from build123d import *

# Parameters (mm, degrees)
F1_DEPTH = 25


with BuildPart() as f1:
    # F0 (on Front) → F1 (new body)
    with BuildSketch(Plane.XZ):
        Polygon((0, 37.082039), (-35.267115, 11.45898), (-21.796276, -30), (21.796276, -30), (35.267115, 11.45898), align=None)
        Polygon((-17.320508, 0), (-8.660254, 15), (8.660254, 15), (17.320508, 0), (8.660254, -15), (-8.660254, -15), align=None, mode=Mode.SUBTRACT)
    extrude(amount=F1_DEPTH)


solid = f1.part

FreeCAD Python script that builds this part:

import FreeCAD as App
import Part
import Sketcher

V = App.Vector
Q = App.Units.Quantity

doc = App.newDocument("Part")
body = doc.addObject("PartDesign::Body", "Body")

# Sketch on XZ plane
sketch1 = doc.addObject("Sketcher::SketchObject", "Sketch")
body.addObject(sketch1)
sketch1.AttachmentSupport = (doc.XZ_Plane, [""])
sketch1.MapMode = "FlatFace"
sketch1.addGeometry(Part.LineSegment(V(0, 37.082039, 0), V(-35.267115, 11.45898, 0)), False)
sketch1.addGeometry(Part.LineSegment(V(-35.267115, 11.45898, 0), V(-21.796276, -30, 0)), False)
sketch1.addGeometry(Part.LineSegment(V(-21.796276, -30, 0), V(21.796276, -30, 0)), False)
sketch1.addGeometry(Part.LineSegment(V(21.796276, -30, 0), V(35.267115, 11.45898, 0)), False)
sketch1.addGeometry(Part.LineSegment(V(35.267115, 11.45898, 0), V(0, 37.082039, 0)), False)
sketch1.addGeometry(Part.LineSegment(V(-8.660254, -15, 0), V(-17.320508, 0, 0)), False)
sketch1.addGeometry(Part.LineSegment(V(-17.320508, 0, 0), V(-8.660254, 15, 0)), False)
sketch1.addGeometry(Part.LineSegment(V(-8.660254, 15, 0), V(8.660254, 15, 0)), False)
sketch1.addGeometry(Part.LineSegment(V(8.660254, 15, 0), V(17.320508, 0, 0)), False)
sketch1.addGeometry(Part.LineSegment(V(17.320508, 0, 0), V(8.660254, -15, 0)), False)
sketch1.addGeometry(Part.LineSegment(V(8.660254, -15, 0), V(-8.660254, -15, 0)), False)
sketch1.addConstraint(Sketcher.Constraint("Coincident", 0, 2, 1, 1))
sketch1.addConstraint(Sketcher.Constraint("Coincident", 1, 2, 2, 1))
sketch1.addConstraint(Sketcher.Constraint("Coincident", 2, 2, 3, 1))
sketch1.addConstraint(Sketcher.Constraint("Coincident", 3, 2, 4, 1))
sketch1.addConstraint(Sketcher.Constraint("Coincident", 4, 2, 0, 1))
sketch1.addConstraint(Sketcher.Constraint("Coincident", 5, 2, 6, 1))
sketch1.addConstraint(Sketcher.Constraint("Coincident", 6, 2, 7, 1))
sketch1.addConstraint(Sketcher.Constraint("Coincident", 7, 2, 8, 1))
sketch1.addConstraint(Sketcher.Constraint("Coincident", 8, 2, 9, 1))
sketch1.addConstraint(Sketcher.Constraint("Coincident", 9, 2, 10, 1))
sketch1.addConstraint(Sketcher.Constraint("Coincident", 10, 2, 5, 1))
sketch1.addConstraint(Sketcher.Constraint("Horizontal", 2))
sketch1.addConstraint(Sketcher.Constraint("Horizontal", 7))
sketch1.addConstraint(Sketcher.Constraint("Horizontal", 10))
sketch1.addConstraint(Sketcher.Constraint("Symmetric", 5, 2, 8, 2, -1, 1))
sketch1.addConstraint(Sketcher.Constraint("Symmetric", 6, 2, 9, 2, -1, 1))
sketch1.addConstraint(Sketcher.Constraint("Symmetric", 0, 2, 3, 2, -2))
sketch1.addConstraint(Sketcher.Constraint("PointOnObject", 4, 2, -2))
sketch1.addConstraint(Sketcher.Constraint("PointOnObject", 5, 2, -1))
sketch1.addConstraint(Sketcher.Constraint("Parallel", 5, 8))
sketch1.addConstraint(Sketcher.Constraint("Vertical", 7, 2, 9, 2))
sketch1.addConstraint(Sketcher.Constraint("Equal", 0, 1))
sketch1.addConstraint(Sketcher.Constraint("Equal", 1, 3))
sketch1.addConstraint(Sketcher.Constraint("Angle", 0, Q("-144 deg")))
sketch1.addConstraint(Sketcher.Constraint("Angle", 1, Q("-72 deg")))
sketch1.addConstraint(Sketcher.Constraint("Angle", 5, Q("120 deg")))
sketch1.addConstraint(Sketcher.Constraint("DistanceY", 1, 2, -1, 1, 30.0))
sketch1.addConstraint(Sketcher.Constraint("DistanceY", -1, 1, 6, 2, 15.0))
sketch1.addConstraint(Sketcher.Constraint("DistanceX", 2, 1, 2, 2, 43.592552))
sketch1.addConstraint(Sketcher.Constraint("DistanceX", 7, 1, 7, 2, 17.320508))
pad1 = doc.addObject("PartDesign::Pad", "Pad")
body.addObject(pad1)
pad1.Profile = sketch1
pad1.Length = 25

doc.recompute()
